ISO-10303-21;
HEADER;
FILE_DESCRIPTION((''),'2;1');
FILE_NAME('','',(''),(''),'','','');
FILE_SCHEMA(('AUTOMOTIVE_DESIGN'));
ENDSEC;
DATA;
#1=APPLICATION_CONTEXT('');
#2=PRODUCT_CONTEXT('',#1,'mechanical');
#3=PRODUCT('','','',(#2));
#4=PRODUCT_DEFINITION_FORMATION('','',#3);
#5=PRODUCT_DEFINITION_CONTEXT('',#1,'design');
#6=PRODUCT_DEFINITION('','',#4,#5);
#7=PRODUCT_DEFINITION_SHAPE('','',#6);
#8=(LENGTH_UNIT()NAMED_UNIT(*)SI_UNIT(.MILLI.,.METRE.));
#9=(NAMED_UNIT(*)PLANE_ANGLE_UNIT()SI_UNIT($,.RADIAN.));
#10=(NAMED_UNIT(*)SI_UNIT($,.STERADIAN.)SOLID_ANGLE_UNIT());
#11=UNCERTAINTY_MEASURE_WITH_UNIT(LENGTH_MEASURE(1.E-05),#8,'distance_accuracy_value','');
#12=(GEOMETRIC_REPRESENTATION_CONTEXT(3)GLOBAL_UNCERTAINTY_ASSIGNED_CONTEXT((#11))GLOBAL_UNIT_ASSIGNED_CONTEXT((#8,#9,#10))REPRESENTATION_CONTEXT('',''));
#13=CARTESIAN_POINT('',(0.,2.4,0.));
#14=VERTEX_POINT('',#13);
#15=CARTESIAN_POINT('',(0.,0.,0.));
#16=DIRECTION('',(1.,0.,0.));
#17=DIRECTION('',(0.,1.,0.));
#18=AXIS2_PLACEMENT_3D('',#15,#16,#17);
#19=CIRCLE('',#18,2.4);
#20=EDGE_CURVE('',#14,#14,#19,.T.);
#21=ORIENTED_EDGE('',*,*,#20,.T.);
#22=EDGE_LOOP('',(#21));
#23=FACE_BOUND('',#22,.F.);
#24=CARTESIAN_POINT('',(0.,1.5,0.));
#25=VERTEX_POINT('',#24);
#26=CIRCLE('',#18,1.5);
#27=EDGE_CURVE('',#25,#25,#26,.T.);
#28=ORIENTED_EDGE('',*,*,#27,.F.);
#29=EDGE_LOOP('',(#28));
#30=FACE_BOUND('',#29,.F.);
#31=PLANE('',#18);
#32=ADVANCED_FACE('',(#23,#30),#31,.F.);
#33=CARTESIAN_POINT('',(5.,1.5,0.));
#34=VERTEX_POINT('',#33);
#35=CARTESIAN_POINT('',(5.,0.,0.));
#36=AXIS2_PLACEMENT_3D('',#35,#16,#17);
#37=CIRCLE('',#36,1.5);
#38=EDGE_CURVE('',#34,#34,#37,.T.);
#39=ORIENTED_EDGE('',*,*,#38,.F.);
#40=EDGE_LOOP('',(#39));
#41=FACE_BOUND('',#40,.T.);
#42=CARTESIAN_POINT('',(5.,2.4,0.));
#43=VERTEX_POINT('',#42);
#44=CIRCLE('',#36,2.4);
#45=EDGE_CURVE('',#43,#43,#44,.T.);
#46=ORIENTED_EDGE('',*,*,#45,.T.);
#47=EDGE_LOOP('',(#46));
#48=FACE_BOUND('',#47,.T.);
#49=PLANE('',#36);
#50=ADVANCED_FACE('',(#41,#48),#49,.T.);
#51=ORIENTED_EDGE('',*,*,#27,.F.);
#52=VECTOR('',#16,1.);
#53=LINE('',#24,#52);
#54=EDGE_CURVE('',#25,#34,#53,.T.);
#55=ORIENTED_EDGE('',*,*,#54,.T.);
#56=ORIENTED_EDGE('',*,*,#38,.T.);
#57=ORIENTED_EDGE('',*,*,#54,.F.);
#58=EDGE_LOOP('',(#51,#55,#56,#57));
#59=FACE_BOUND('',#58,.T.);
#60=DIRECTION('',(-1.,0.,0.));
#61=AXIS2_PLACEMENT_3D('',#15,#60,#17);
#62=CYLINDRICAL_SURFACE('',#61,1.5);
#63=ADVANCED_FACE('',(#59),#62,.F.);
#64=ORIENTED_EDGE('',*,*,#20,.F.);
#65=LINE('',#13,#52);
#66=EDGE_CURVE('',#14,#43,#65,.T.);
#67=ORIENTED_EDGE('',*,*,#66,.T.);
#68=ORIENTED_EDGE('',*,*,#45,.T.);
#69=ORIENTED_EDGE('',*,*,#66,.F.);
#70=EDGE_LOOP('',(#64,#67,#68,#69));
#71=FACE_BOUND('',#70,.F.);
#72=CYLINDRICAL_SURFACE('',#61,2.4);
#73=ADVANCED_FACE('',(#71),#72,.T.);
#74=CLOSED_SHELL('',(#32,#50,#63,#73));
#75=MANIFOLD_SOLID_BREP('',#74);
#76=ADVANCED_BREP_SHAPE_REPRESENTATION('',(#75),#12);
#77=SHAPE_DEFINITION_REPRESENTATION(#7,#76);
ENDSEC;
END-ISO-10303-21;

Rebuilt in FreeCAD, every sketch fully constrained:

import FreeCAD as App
import Part
import Sketcher

doc = App.newDocument("Part")
params = doc.addObject("Spreadsheet::Sheet", "Params")
for row, (alias, value) in enumerate([
    ("sketch1_diameter", "3 mm"),
    ("sketch1_diameter2", "4.8 mm"),
    ("pad1_length", "5 mm"),
], start=1):
    params.set(f"A{row}", alias)
    params.set(f"B{row}", "=" + value)
    params.setAlias(f"B{row}", alias)

body = doc.addObject("PartDesign::Body", "Body")

sketch1 = body.newObject("Sketcher::SketchObject", "Sketch")
sketch1.AttachmentSupport = (doc.getObject("YZ_Plane"), [""])
sketch1.MapMode = "FlatFace"
sketch1.addGeometry(Part.Circle(App.Vector(0, 0, 0), App.Vector(0, 0, 1), 2.4), False)
sketch1.addGeometry(Part.Circle(App.Vector(0, 0, 0), App.Vector(0, 0, 1), 1.5), False)
sketch1.addConstraint(Sketcher.Constraint("Coincident", 0, 3, -1, 1))
sketch1.addConstraint(Sketcher.Constraint("Coincident", 1, 3, -1, 1))
sketch1.addConstraint(Sketcher.Constraint("Diameter", 1, 3.0))
sketch1.addConstraint(Sketcher.Constraint("Diameter", 0, 4.8))
sketch1.setExpression("Constraints[2]", "Params.sketch1_diameter")
sketch1.setExpression("Constraints[3]", "Params.sketch1_diameter2")
pad1 = body.newObject("PartDesign::Pad", "Pad")
pad1.Profile = sketch1
pad1.setExpression("Length", "Params.pad1_length")

doc.recompute()
